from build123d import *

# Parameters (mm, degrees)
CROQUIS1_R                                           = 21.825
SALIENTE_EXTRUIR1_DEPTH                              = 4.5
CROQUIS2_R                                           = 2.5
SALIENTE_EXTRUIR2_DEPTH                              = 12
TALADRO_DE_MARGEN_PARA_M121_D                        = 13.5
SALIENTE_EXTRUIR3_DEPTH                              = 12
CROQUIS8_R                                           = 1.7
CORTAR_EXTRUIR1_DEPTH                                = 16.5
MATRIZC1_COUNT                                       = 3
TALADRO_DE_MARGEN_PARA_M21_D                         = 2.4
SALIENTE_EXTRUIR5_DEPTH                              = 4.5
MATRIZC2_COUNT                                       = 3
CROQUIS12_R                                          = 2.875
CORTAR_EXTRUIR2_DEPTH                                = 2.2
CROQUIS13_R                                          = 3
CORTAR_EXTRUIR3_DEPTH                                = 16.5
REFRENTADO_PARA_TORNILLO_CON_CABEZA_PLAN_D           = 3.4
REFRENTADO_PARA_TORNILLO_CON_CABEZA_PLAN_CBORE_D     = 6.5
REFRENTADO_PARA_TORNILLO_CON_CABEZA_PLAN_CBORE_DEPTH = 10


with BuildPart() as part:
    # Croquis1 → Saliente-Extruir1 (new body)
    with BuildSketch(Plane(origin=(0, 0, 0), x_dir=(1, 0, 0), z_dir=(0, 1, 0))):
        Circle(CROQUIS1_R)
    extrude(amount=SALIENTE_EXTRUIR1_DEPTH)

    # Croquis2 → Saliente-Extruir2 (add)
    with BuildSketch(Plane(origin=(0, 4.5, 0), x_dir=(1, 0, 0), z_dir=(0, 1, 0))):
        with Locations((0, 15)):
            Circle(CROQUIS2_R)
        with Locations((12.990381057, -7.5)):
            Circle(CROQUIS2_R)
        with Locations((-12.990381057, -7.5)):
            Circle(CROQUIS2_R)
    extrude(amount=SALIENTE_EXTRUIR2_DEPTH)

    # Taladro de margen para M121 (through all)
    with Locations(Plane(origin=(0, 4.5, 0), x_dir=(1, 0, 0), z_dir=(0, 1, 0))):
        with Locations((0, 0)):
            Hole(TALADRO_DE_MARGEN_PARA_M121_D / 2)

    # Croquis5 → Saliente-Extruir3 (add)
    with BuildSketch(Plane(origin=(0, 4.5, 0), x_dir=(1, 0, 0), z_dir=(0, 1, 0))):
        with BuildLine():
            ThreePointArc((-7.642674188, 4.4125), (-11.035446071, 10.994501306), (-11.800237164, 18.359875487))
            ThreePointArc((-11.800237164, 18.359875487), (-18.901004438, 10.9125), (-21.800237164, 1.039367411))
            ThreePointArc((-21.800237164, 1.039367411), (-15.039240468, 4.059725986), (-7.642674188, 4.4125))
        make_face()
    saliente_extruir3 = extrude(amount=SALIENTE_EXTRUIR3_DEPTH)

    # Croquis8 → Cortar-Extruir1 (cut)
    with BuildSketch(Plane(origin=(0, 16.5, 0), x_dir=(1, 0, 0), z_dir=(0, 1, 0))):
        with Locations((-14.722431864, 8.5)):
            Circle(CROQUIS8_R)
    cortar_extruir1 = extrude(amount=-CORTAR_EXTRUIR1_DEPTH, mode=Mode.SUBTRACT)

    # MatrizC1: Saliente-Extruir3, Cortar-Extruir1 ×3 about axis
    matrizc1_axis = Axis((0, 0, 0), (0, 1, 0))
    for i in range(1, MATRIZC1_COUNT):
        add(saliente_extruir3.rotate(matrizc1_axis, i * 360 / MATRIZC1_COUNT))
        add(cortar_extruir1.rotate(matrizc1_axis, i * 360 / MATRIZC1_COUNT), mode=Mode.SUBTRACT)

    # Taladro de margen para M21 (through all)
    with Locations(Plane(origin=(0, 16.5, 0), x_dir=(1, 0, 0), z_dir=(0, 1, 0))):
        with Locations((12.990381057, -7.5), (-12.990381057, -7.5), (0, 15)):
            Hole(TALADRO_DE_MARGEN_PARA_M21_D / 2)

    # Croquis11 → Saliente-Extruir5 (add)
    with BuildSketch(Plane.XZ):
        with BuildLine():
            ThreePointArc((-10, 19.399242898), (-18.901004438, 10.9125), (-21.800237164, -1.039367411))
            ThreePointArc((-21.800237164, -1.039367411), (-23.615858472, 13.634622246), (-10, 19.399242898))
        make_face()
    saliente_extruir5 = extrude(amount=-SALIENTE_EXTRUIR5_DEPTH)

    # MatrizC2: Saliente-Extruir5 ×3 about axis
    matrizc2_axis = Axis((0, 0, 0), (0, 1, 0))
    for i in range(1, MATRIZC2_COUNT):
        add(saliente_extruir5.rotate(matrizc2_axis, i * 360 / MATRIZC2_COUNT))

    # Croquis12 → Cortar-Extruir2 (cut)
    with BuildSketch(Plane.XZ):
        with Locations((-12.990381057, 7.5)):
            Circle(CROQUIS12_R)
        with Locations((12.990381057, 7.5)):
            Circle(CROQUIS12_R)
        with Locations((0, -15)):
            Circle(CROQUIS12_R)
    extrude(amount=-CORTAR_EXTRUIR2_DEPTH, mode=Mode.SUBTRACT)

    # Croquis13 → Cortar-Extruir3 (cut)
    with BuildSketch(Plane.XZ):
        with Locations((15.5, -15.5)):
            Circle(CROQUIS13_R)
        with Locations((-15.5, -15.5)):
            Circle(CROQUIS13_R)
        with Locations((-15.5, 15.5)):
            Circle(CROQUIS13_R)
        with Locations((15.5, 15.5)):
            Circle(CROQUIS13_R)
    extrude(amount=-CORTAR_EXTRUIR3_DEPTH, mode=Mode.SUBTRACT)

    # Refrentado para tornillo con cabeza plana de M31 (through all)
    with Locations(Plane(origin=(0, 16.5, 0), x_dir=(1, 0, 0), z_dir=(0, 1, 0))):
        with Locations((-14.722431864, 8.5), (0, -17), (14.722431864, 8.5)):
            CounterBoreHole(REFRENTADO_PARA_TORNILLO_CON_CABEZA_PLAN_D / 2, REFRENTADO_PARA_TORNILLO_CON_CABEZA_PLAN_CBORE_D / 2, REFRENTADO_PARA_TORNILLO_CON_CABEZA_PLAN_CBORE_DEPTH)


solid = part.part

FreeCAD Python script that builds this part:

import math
import FreeCAD as App
import Part
import Sketcher

doc = App.newDocument("Part")
body = doc.addObject("PartDesign::Body", "Body")

sketch1 = body.newObject("Sketcher::SketchObject", "Sketch")
sketch1.AttachmentSupport = (doc.getObject("XZ_Plane"), [""])
sketch1.MapMode = "FlatFace"
sketch1.addGeometry(Part.Circle(App.Vector(0, 0, 0), App.Vector(0, 0, 1), 22), False)
sketch1.addConstraint([
    Sketcher.Constraint("Coincident", 0, 3, -1, 1),
    Sketcher.Constraint("Diameter", 0, 43.65),
])
pad1 = body.newObject("PartDesign::Pad", "Pad")
pad1.Profile = sketch1
pad1.Length = 4.5
pad1.Reversed = True

sketch2 = body.newObject("Sketcher::SketchObject", "Sketch001")
sketch2.AttachmentSupport = (doc.getObject("XZ_Plane"), [""])
sketch2.MapMode = "FlatFace"
sketch2.AttachmentOffset = App.Placement(App.Vector(0, 0, -4.5), App.Rotation())
sketch2.addGeometry([
    Part.Circle(App.Vector(0, -15, 0), App.Vector(0, 0, 1), 2.5),
    Part.Circle(App.Vector(13, 7.5, 0), App.Vector(0, 0, 1), 2.5),
    Part.Circle(App.Vector(-13, 7.5, 0), App.Vector(0, 0, 1), 2.5),
], False)
sketch2.addConstraint([
    Sketcher.Constraint("Equal", 0, 1),
    Sketcher.Constraint("Equal", 1, 2),
    Sketcher.Constraint("Symmetric", 1, 3, 2, 3, -2),
    Sketcher.Constraint("PointOnObject", 0, 3, -2),
    Sketcher.Constraint("Diameter", 0, 5.0),
    Sketcher.Constraint("DistanceY", 0, 3, -1, 1, 15.0),
    Sketcher.Constraint("DistanceY", -1, 1, 1, 3, 7.5),
    Sketcher.Constraint("DistanceX", -1, 1, 1, 3, 12.990381),
])
pad2 = body.newObject("PartDesign::Pad", "Pad001")
pad2.Profile = sketch2
pad2.Length = 12
pad2.Reversed = True

sketch3 = body.newObject("Sketcher::SketchObject", "Sketch002")
sketch3.AttachmentSupport = (doc.getObject("XZ_Plane"), [""])
sketch3.MapMode = "FlatFace"
sketch3.AttachmentOffset = App.Placement(App.Vector(0, 0, -4.5), App.Rotation())
sketch3.addGeometry(Part.Circle(App.Vector(0, 0, 0), App.Vector(0, 0, 1), 7), False)
sketch3.addConstraint([
    Sketcher.Constraint("Coincident", 0, 3, -1, 1),
    Sketcher.Constraint("Diameter", 0, 13.5),
])
doc.recompute()
hole = body.newObject("PartDesign::Hole", "Hole")
hole.Profile = sketch3
hole.ThreadType = "None"
hole.Diameter = 13.5
hole.DepthType = "ThroughAll"
hole.Reversed = True

sketch4 = body.newObject("Sketcher::SketchObject", "Sketch003")
sketch4.AttachmentSupport = (doc.getObject("XZ_Plane"), [""])
sketch4.MapMode = "FlatFace"
sketch4.AttachmentOffset = App.Placement(App.Vector(0, 0, -4.5), App.Rotation())
sketch4.addGeometry([
    Part.ArcOfCircle(Part.Circle(App.Vector(8, -17, 0), App.Vector(0, 0, 1), 20), math.radians(142), math.radians(185)),
    Part.ArcOfCircle(Part.Circle(App.Vector(0, 0, 0), App.Vector(0, 0, 1), 22), math.radians(-177), math.radians(-123)),
    Part.ArcOfCircle(Part.Circle(App.Vector(-10, 15, 0), App.Vector(0, 0, 1), 20), math.radians(-125), math.radians(-82)),
], False)
sketch4.addConstraint([
    Sketcher.Constraint("Coincident", 0, 2, 1, 2),
    Sketcher.Constraint("Coincident", 1, 1, 2, 1),
    Sketcher.Constraint("Coincident", 2, 2, 0, 1),
    Sketcher.Constraint("Coincident", 1, 3, -1, 1),
    Sketcher.Constraint("Equal", 0, 2),
    Sketcher.Constraint("Radius", 1, 21.825),
    Sketcher.Constraint("DistanceX", 1, 1, 0, 2, 10.0),
    Sketcher.Constraint("Radius", 0, 19.99583),
    Sketcher.Constraint("DistanceY", 2, 2, -1, 1, 4.4125),
    Sketcher.Constraint("DistanceY", 0, 3, -1, 1, 16.706661),
    Sketcher.Constraint("DistanceX", 2, 3, 0, 3, 18.531959),
])
pad3 = body.newObject("PartDesign::Pad", "Pad002")
pad3.Profile = sketch4
pad3.Length = 12
pad3.Reversed = True

sketch5 = body.newObject("Sketcher::SketchObject", "Sketch004")
sketch5.AttachmentSupport = (doc.getObject("XZ_Plane"), [""])
sketch5.MapMode = "FlatFace"
sketch5.AttachmentOffset = App.Placement(App.Vector(0, 0, -16.5), App.Rotation())
sketch5.addGeometry(Part.Circle(App.Vector(-14.7, -8.5, 0), App.Vector(0, 0, 1), 1.7), False)
sketch5.addConstraint([
    Sketcher.Constraint("Diameter", 0, 3.4),
    Sketcher.Constraint("DistanceY", 0, 3, -1, 1, 8.5),
    Sketcher.Constraint("DistanceX", 0, 3, -1, 1, 14.722432),
])
pocket1 = body.newObject("PartDesign::Pocket", "Pocket")
pocket1.Profile = sketch5
pocket1.Length = 16.5
pocket1.Reversed = True
doc.recompute()

polarpattern = body.newObject("PartDesign::PolarPattern", "PolarPattern")
polarpattern.Originals = [pad3, pocket1]
polarpattern.Axis = (doc.getObject("Y_Axis"), [""])
polarpattern.Angle = 360
polarpattern.Occurrences = 3
body.Tip = polarpattern

sketch6 = body.newObject("Sketcher::SketchObject", "Sketch005")
sketch6.AttachmentSupport = (doc.getObject("XZ_Plane"), [""])
sketch6.MapMode = "FlatFace"
sketch6.AttachmentOffset = App.Placement(App.Vector(0, 0, -16.5), App.Rotation())
sketch6.addGeometry([
    Part.Circle(App.Vector(13, 7.5, 0), App.Vector(0, 0, 1), 1.2),
    Part.Circle(App.Vector(-13, 7.5, 0), App.Vector(0, 0, 1), 1.2),
    Part.Circle(App.Vector(0, -15, 0), App.Vector(0, 0, 1), 1.2),
], False)
sketch6.addConstraint([
    Sketcher.Constraint("Equal", 0, 1),
    Sketcher.Constraint("Equal", 1, 2),
    Sketcher.Constraint("Symmetric", 0, 3, 1, 3, -2),
    Sketcher.Constraint("PointOnObject", 2, 3, -2),
    Sketcher.Constraint("Diameter", 0, 2.4),
    Sketcher.Constraint("DistanceY", 2, 3, -1, 1, 15.0),
    Sketcher.Constraint("DistanceY", -1, 1, 0, 3, 7.5),
    Sketcher.Constraint("DistanceX", -1, 1, 0, 3, 12.990381),
])
doc.recompute()
hole2 = body.newObject("PartDesign::Hole", "Hole001")
hole2.Profile = sketch6
hole2.ThreadType = "None"
hole2.Diameter = 2.4
hole2.DepthType = "ThroughAll"
hole2.Reversed = True

sketch7 = body.newObject("Sketcher::SketchObject", "Sketch006")
sketch7.AttachmentSupport = (doc.getObject("XZ_Plane"), [""])
sketch7.MapMode = "FlatFace"
sketch7.addGeometry([
    Part.ArcOfCircle(Part.Circle(App.Vector(0, 0, 0), App.Vector(0, 0, 1), 22), math.radians(117), math.radians(183)),
    Part.ArcOfCircle(Part.Circle(App.Vector(-13, 8, 0), App.Vector(0, 0, 1), 12), math.radians(76), math.radians(224)),
], False)
sketch7.addConstraint([
    Sketcher.Constraint("Coincident", 0, 1, 1, 1),
    Sketcher.Constraint("Coincident", 1, 2, 0, 2),
    Sketcher.Constraint("Coincident", 0, 3, -1, 1),
    Sketcher.Constraint("DistanceX", 0, 1, -1, 1, 10.0),
    Sketcher.Constraint("Radius", 0, 21.825),
    Sketcher.Constraint("DistanceY", -1, 1, 1, 3, 7.5),
    Sketcher.Constraint("Radius", 1, 12.269244),
])
pad4 = body.newObject("PartDesign::Pad", "Pad003")
pad4.Profile = sketch7
pad4.Length = 4.5
pad4.Reversed = True
doc.recompute()

polarpattern2 = body.newObject("PartDesign::PolarPattern", "PolarPattern001")
polarpattern2.Originals = [pad4]
polarpattern2.Axis = (doc.getObject("Y_Axis"), [""])
polarpattern2.Angle = 360
polarpattern2.Occurrences = 3
body.Tip = polarpattern2

sketch8 = body.newObject("Sketcher::SketchObject", "Sketch007")
sketch8.AttachmentSupport = (doc.getObject("XZ_Plane"), [""])
sketch8.MapMode = "FlatFace"
sketch8.addGeometry([
    Part.Circle(App.Vector(-13, 7.5, 0), App.Vector(0, 0, 1), 2.9),
    Part.Circle(App.Vector(13, 7.5, 0), App.Vector(0, 0, 1), 2.9),
    Part.Circle(App.Vector(0, -15, 0), App.Vector(0, 0, 1), 2.9),
], False)
sketch8.addConstraint([
    Sketcher.Constraint("Equal", 0, 1),
    Sketcher.Constraint("Equal", 1, 2),
    Sketcher.Constraint("Symmetric", 0, 3, 1, 3, -2),
    Sketcher.Constraint("PointOnObject", 2, 3, -2),
    Sketcher.Constraint("Diameter", 0, 5.75),
    Sketcher.Constraint("DistanceY", 2, 3, -1, 1, 15.0),
    Sketcher.Constraint("DistanceY", -1, 1, 0, 3, 7.5),
    Sketcher.Constraint("DistanceX", 0, 3, -1, 1, 12.990381),
])
pocket2 = body.newObject("PartDesign::Pocket", "Pocket001")
pocket2.Profile = sketch8
pocket2.Length = 2.2

sketch9 = body.newObject("Sketcher::SketchObject", "Sketch008")
sketch9.AttachmentSupport = (doc.getObject("XZ_Plane"), [""])
sketch9.MapMode = "FlatFace"
sketch9.addGeometry([
    Part.Circle(App.Vector(15.5, -15.5, 0), App.Vector(0, 0, 1), 3),
    Part.Circle(App.Vector(-15.5, -15.5, 0), App.Vector(0, 0, 1), 3),
    Part.Circle(App.Vector(-15.5, 15.5, 0), App.Vector(0, 0, 1), 3),
    Part.Circle(App.Vector(15.5, 15.5, 0), App.Vector(0, 0, 1), 3),
], False)
sketch9.addConstraint([
    Sketcher.Constraint("Equal", 0, 1),
    Sketcher.Constraint("Equal", 1, 2),
    Sketcher.Constraint("Equal", 2, 3),
    Sketcher.Constraint("Symmetric", 0, 3, 2, 3, -1, 1),
    Sketcher.Constraint("Symmetric", 1, 3, 3, 3, -1, 1),
    Sketcher.Constraint("Symmetric", 0, 3, 1, 3, -2),
    Sketcher.Constraint("Diameter", 0, 6.0),
    Sketcher.Constraint("DistanceX", 1, 3, 0, 3, 31.0),
    Sketcher.Constraint("DistanceY", 1, 3, 2, 3, 31.0),
])
pocket3 = body.newObject("PartDesign::Pocket", "Pocket002")
pocket3.Profile = sketch9
pocket3.Length = 16.5

sketch10 = body.newObject("Sketcher::SketchObject", "Sketch009")
sketch10.AttachmentSupport = (doc.getObject("XZ_Plane"), [""])
sketch10.MapMode = "FlatFace"
sketch10.AttachmentOffset = App.Placement(App.Vector(0, 0, -16.5), App.Rotation())
sketch10.addGeometry([
    Part.Circle(App.Vector(-14.7, -8.5, 0), App.Vector(0, 0, 1), 1.7),
    Part.Circle(App.Vector(0, 17, 0), App.Vector(0, 0, 1), 1.7),
    Part.Circle(App.Vector(14.7, -8.5, 0), App.Vector(0, 0, 1), 1.7),
], False)
sketch10.addConstraint([
    Sketcher.Constraint("Equal", 0, 1),
    Sketcher.Constraint("Equal", 1, 2),
    Sketcher.Constraint("Symmetric", 0, 3, 2, 3, -2),
    Sketcher.Constraint("PointOnObject", 1, 3, -2),
    Sketcher.Constraint("Diameter", 0, 3.4),
    Sketcher.Constraint("DistanceY", -1, 1, 1, 3, 17.0),
    Sketcher.Constraint("DistanceY", 0, 3, -1, 1, 8.5),
    Sketcher.Constraint("DistanceX", 0, 3, -1, 1, 14.722432),
])
doc.recompute()
hole3 = body.newObject("PartDesign::Hole", "Hole002")
hole3.Profile = sketch10
hole3.ThreadType = "None"
hole3.Diameter = 3.4
hole3.DepthType = "ThroughAll"
hole3.HoleCutType = "Counterbore"
hole3.HoleCutDiameter = 6.5
hole3.HoleCutDepth = 10
hole3.Reversed = True

doc.recompute()
